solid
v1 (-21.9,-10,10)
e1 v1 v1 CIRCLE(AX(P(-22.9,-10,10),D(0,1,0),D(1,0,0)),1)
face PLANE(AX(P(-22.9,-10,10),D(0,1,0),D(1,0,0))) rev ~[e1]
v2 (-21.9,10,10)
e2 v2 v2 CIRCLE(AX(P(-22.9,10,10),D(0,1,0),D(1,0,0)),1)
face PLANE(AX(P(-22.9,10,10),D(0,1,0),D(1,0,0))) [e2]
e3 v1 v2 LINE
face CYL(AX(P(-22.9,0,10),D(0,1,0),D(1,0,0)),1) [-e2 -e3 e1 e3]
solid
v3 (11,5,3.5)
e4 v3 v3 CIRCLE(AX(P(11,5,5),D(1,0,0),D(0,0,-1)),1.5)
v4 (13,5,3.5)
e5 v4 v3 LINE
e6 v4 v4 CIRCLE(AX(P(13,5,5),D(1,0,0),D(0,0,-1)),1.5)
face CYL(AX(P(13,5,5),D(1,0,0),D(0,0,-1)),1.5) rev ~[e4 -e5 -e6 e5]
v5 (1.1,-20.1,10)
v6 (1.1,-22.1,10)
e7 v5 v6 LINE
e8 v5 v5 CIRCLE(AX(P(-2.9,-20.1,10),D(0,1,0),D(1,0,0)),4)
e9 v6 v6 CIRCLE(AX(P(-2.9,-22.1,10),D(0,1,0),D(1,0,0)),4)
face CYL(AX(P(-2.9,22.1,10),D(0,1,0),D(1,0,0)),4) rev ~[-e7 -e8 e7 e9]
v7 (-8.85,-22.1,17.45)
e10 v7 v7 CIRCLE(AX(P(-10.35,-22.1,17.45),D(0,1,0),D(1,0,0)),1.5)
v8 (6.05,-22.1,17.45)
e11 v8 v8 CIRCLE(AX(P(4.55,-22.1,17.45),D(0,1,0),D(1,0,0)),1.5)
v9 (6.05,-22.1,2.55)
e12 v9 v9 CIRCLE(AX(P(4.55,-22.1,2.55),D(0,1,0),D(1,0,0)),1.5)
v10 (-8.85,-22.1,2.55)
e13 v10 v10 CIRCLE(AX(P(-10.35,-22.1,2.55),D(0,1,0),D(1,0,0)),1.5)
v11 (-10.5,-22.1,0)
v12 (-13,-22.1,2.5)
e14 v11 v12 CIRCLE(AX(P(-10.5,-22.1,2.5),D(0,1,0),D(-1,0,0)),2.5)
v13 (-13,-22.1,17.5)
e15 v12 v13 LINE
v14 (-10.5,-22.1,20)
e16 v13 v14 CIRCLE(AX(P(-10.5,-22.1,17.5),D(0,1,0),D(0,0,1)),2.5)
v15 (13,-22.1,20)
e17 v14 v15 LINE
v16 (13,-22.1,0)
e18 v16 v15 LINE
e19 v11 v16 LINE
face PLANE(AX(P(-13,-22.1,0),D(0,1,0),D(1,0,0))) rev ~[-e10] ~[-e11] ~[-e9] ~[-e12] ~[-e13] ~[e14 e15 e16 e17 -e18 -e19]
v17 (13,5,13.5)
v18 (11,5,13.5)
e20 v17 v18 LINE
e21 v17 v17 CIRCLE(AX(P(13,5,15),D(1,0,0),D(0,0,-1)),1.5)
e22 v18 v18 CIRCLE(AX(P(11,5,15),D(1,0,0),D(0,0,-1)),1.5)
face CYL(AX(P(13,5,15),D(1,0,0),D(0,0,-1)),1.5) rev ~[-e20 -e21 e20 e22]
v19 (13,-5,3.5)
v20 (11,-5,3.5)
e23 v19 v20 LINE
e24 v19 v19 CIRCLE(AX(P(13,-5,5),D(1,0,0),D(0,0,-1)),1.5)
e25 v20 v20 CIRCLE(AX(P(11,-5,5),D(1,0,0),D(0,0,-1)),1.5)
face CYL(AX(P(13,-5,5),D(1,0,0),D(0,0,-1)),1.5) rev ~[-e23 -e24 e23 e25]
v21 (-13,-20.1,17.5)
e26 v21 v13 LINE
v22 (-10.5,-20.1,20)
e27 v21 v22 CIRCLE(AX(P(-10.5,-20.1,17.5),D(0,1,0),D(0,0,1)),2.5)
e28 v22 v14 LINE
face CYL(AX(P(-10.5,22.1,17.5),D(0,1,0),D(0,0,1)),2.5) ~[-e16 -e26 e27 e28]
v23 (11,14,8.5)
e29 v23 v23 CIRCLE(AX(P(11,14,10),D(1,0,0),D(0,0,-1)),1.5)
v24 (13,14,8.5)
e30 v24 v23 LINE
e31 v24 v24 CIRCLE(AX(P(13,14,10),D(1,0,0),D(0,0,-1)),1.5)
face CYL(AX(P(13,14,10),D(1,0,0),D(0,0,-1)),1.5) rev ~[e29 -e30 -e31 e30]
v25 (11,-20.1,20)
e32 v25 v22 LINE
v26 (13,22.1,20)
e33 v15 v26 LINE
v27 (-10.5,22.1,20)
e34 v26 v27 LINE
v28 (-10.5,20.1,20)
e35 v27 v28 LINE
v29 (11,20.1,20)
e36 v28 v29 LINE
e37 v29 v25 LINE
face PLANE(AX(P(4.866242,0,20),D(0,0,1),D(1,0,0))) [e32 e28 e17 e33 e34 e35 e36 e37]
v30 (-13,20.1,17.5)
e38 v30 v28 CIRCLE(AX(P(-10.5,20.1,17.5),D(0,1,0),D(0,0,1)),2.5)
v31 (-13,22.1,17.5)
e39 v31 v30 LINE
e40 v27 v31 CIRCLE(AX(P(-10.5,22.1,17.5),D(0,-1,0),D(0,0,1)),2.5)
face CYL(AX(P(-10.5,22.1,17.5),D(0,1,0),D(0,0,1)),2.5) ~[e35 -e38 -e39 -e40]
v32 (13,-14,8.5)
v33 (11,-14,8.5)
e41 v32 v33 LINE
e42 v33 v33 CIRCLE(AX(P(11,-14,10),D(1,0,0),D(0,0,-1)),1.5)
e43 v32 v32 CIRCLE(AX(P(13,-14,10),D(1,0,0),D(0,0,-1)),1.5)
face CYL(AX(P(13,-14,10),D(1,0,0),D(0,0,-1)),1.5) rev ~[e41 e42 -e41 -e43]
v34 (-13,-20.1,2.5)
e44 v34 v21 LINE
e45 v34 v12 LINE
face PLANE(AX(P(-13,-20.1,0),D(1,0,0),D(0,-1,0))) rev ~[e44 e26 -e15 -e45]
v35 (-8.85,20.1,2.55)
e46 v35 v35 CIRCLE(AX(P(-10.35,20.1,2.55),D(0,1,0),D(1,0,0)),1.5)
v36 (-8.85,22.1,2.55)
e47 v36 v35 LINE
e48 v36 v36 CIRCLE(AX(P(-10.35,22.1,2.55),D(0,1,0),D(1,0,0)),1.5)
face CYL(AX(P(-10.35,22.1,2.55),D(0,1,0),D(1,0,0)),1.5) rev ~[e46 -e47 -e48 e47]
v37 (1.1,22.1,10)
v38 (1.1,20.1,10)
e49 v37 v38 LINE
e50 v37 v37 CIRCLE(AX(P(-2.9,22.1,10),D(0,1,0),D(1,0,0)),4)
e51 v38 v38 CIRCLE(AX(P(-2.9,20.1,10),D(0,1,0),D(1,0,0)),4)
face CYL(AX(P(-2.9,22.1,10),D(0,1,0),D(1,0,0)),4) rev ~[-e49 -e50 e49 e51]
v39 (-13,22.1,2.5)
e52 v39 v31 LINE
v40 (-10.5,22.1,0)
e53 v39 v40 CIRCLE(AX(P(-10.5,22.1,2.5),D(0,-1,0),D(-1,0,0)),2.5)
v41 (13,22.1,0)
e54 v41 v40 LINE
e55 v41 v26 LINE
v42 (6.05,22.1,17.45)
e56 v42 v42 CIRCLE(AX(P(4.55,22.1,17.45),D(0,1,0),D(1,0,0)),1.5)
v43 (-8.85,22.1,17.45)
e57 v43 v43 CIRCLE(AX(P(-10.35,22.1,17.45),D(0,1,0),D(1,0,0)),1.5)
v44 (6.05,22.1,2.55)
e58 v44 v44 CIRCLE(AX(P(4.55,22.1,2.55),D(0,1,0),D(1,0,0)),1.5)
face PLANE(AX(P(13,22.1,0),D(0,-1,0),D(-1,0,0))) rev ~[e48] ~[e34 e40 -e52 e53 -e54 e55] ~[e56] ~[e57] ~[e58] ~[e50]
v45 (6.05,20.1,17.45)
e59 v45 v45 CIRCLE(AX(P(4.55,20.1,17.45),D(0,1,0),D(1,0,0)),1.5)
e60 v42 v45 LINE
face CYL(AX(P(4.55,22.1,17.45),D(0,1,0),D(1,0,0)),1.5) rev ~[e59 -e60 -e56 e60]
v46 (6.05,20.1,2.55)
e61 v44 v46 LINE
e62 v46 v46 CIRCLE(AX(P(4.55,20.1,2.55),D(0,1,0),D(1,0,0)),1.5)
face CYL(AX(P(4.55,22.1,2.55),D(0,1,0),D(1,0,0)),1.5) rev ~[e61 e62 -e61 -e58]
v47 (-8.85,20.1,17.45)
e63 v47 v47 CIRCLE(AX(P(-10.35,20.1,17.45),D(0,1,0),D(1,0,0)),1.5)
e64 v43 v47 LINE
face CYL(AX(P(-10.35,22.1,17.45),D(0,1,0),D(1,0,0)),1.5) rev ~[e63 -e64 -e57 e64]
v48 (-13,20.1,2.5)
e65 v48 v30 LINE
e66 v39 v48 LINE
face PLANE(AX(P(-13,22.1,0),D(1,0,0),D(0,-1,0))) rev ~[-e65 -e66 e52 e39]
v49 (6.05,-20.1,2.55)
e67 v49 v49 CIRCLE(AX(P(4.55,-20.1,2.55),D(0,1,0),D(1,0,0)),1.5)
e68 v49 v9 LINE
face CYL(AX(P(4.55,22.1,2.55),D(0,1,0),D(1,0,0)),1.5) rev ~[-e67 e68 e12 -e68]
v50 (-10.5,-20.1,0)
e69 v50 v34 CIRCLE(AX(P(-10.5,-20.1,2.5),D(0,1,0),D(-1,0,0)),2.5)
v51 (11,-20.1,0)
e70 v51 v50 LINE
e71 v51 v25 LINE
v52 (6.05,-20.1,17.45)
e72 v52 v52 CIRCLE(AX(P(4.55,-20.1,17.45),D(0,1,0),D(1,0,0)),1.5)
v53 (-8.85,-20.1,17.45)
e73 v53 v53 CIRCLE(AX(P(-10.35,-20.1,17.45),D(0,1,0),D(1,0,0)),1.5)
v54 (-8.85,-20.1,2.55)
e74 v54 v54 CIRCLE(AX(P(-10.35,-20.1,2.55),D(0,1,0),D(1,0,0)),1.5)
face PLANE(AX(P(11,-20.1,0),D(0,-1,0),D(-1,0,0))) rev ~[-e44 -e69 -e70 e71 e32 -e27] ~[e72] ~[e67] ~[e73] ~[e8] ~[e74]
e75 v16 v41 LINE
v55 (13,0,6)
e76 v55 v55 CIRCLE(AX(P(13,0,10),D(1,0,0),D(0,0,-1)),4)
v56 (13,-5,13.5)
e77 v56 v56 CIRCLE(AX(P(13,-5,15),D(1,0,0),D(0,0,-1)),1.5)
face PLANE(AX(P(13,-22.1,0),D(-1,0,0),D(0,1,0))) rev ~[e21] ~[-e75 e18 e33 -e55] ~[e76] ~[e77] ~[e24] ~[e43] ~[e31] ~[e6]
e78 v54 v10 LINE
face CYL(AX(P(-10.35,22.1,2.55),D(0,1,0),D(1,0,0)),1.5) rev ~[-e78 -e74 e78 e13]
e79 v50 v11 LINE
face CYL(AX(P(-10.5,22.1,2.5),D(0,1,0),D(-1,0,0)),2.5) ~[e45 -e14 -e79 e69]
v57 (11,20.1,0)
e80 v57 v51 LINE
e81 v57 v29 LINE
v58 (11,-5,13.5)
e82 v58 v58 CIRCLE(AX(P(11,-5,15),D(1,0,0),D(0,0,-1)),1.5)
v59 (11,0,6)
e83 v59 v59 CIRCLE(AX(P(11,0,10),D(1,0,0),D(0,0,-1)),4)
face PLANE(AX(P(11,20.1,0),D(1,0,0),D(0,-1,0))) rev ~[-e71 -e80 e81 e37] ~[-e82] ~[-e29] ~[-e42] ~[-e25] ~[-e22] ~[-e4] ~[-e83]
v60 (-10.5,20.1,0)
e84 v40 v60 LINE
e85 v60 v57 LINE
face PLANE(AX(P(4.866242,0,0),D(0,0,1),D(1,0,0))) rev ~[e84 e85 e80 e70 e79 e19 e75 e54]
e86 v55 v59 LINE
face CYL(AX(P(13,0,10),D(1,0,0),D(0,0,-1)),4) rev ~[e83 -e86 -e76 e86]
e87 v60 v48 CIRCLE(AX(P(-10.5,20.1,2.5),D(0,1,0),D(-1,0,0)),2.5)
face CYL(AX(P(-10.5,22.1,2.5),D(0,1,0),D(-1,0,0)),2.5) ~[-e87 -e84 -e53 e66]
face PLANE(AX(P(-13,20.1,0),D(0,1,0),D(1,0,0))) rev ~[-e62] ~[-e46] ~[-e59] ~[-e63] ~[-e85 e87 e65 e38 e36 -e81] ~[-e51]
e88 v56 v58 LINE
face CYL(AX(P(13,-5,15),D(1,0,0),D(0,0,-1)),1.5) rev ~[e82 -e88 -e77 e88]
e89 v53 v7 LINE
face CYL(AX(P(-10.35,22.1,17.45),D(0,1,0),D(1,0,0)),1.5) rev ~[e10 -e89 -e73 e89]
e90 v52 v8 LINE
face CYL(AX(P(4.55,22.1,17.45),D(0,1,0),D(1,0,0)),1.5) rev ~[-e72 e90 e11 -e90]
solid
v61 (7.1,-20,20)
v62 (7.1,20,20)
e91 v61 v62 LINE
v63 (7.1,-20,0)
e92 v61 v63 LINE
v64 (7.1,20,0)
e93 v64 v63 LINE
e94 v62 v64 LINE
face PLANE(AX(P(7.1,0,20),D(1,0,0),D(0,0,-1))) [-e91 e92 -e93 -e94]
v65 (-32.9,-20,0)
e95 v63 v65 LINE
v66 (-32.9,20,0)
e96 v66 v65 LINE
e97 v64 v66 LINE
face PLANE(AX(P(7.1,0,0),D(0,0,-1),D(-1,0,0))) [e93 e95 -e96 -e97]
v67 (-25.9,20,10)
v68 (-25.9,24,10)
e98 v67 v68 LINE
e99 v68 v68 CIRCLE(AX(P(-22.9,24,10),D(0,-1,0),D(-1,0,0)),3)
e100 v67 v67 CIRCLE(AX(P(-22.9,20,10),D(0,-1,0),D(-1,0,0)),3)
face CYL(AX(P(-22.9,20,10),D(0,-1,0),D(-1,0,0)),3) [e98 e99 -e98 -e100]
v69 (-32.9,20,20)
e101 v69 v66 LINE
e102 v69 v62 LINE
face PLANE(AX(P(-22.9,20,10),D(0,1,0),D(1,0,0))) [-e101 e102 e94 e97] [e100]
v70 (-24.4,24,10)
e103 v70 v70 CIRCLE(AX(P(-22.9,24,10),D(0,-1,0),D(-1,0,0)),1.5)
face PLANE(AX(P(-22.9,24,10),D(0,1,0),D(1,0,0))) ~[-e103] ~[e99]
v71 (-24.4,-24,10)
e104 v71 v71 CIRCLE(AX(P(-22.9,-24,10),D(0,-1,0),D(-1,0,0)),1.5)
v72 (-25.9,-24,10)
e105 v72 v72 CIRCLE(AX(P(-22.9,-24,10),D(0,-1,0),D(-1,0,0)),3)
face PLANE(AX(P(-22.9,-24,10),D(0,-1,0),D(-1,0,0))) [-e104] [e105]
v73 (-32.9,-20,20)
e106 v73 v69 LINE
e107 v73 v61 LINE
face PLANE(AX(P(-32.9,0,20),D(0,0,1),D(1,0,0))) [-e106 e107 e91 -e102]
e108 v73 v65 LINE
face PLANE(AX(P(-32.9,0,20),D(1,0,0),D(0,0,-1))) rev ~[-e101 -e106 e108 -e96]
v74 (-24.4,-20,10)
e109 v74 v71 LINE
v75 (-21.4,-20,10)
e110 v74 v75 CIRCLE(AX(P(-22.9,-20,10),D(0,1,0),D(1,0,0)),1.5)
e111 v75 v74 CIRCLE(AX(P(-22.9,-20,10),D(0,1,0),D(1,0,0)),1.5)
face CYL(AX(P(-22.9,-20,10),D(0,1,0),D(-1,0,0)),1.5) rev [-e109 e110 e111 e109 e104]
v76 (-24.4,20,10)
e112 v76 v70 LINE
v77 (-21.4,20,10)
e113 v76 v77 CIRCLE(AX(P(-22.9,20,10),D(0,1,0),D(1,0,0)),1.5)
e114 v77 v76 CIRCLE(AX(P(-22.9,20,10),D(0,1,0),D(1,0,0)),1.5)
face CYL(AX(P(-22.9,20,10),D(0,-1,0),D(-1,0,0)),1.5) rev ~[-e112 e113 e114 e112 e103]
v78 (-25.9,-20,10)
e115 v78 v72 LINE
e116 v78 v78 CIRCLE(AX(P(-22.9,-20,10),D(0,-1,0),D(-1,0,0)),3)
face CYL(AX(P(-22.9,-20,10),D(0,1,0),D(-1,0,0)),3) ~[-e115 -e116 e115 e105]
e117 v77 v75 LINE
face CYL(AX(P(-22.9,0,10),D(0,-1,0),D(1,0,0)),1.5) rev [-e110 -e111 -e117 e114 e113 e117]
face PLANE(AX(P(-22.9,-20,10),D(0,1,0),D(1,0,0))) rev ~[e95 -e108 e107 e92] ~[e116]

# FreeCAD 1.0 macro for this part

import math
import FreeCAD as App
import Part
import Sketcher


def add_polygon(sketch, points):
    """Adds a closed chain of lines whose ends are joined by coincident constraints."""
    first, n = sketch.GeometryCount, len(points)
    for a, b in zip(points, points[1:] + points[:1]):
        sketch.addGeometry(Part.LineSegment(App.Vector(*a, 0), App.Vector(*b, 0)), False)
    for i in range(n):
        sketch.addConstraint(Sketcher.Constraint("Coincident", first + i, 2, first + (i + 1) % n, 1))

doc = App.newDocument("Part")
body = doc.addObject("PartDesign::Body", "Body")

# Sketch on XY plane
sketch1 = doc.addObject("Sketcher::SketchObject", "Sketch")
body.addObject(sketch1)
sketch1.AttachmentSupport = (doc.XY_Plane, [""])
sketch1.MapMode = "FlatFace"
add_polygon(sketch1, [(11, -20.1), (-13, -20.1), (-13, -22.1), (13, -22.1), (13, 22.1), (-13, 22.1), (-13, 20.1), (11, 20.1)])  # lines 0-7
sketch1.addConstraint([
    Sketcher.Constraint("Horizontal", 0),
    Sketcher.Constraint("Vertical", 1),
    Sketcher.Constraint("Horizontal", 2),
    Sketcher.Constraint("Vertical", 3),
    Sketcher.Constraint("Horizontal", 4),
    Sketcher.Constraint("Vertical", 5),
    Sketcher.Constraint("Horizontal", 6),
    Sketcher.Constraint("Vertical", 7),
    Sketcher.Constraint("Symmetric", 1, 2, 3, 2, -1, 1),
    Sketcher.Constraint("Symmetric", 0, 2, 5, 2, -1),
    Sketcher.Constraint("DistanceX", 0, 2, 0, 1, 24.0),
    Sketcher.Constraint("DistanceX", 2, 1, 2, 2, 26.0),
    Sketcher.Constraint("DistanceY", 1, 2, 1, 1, 2.0),
    Sketcher.Constraint("DistanceY", 3, 1, 3, 2, 44.2),
])
pad1 = doc.addObject("PartDesign::Pad", "Pad")
body.addObject(pad1)
pad1.Profile = sketch1
pad1.Length = 20

# Sketch on XZ plane
sketch2 = doc.addObject("Sketcher::SketchObject", "Sketch001")
body.addObject(sketch2)
sketch2.AttachmentSupport = (doc.XZ_Plane, [""])
sketch2.MapMode = "FlatFace"
sketch2.AttachmentOffset = App.Placement(App.Vector(0, 0, -22.1), App.Rotation())
sketch2.addGeometry([
    Part.LineSegment(App.Vector(-13, 17.5, 0), App.Vector(-13, 20, 0)),  # 0
    Part.LineSegment(App.Vector(-13, 20, 0), App.Vector(-10.5, 20, 0)),  # 1
    Part.ArcOfCircle(Part.Circle(App.Vector(-10.5, 17.5, 0), App.Vector(0, 0, 1), 2.5), math.radians(90), math.radians(180)),  # 2
    Part.LineSegment(App.Vector(-13, 0, 0), App.Vector(-13, 2.5, 0)),  # 3
    Part.ArcOfCircle(Part.Circle(App.Vector(-10.5, 2.5, 0), App.Vector(0, 0, 1), 2.5), math.radians(180), math.radians(270)),  # 4
    Part.LineSegment(App.Vector(-10.5, 0, 0), App.Vector(-13, 0, 0)),  # 5
], False)
sketch2.addConstraint([
    Sketcher.Constraint("Coincident", 0, 2, 1, 1),
    Sketcher.Constraint("Tangent", 1, 2, 2, 1),
    Sketcher.Constraint("Tangent", 2, 2, 0, 1),
    Sketcher.Constraint("Tangent", 3, 2, 4, 1),
    Sketcher.Constraint("Tangent", 4, 2, 5, 1),
    Sketcher.Constraint("Coincident", 5, 2, 3, 1),
    Sketcher.Constraint("Vertical", 0),
    Sketcher.Constraint("Horizontal", 1),
    Sketcher.Constraint("Vertical", 3),
    Sketcher.Constraint("Horizontal", 5),
    Sketcher.Constraint("Equal", 2, 4),
    Sketcher.Constraint("PointOnObject", 4, 2, -1),
    Sketcher.Constraint("Vertical", 2, 3, 4, 3),
    Sketcher.Constraint("Radius", 2, 2.5),
    Sketcher.Constraint("DistanceX", 0, 2, -1, 1, 13.0),
    Sketcher.Constraint("DistanceY", -1, 1, 0, 2, 20.0),
])
pocket1 = doc.addObject("PartDesign::Pocket", "Pocket")
body.addObject(pocket1)
pocket1.Profile = sketch2
pocket1.Type = "ThroughAll"
pocket1.Reversed = True

# Sketch on XZ plane
sketch3 = doc.addObject("Sketcher::SketchObject", "Sketch002")
body.addObject(sketch3)
sketch3.AttachmentSupport = (doc.XZ_Plane, [""])
sketch3.MapMode = "FlatFace"
sketch3.AttachmentOffset = App.Placement(App.Vector(0, 0, -22.1), App.Rotation())
sketch3.addGeometry([
    Part.Circle(App.Vector(-2.9, 10, 0), App.Vector(0, 0, 1), 4),  # 0
    Part.Circle(App.Vector(-10.3, 17.4, 0), App.Vector(0, 0, 1), 1.5),  # 1
    Part.Circle(App.Vector(-10.3, 2.5, 0), App.Vector(0, 0, 1), 1.5),  # 2
    Part.Circle(App.Vector(4.5, 17.4, 0), App.Vector(0, 0, 1), 1.5),  # 3
    Part.Circle(App.Vector(4.5, 2.5, 0), App.Vector(0, 0, 1), 1.5),  # 4
], False)
sketch3.addConstraint([
    Sketcher.Constraint("Equal", 1, 2),
    Sketcher.Constraint("Equal", 2, 3),
    Sketcher.Constraint("Equal", 3, 4),
    Sketcher.Constraint("Horizontal", 1, 3, 3, 3),
    Sketcher.Constraint("Horizontal", 2, 3, 4, 3),
    Sketcher.Constraint("Vertical", 1, 3, 2, 3),
    Sketcher.Constraint("Vertical", 3, 3, 4, 3),
    Sketcher.Constraint("Diameter", 0, 8.0),
    Sketcher.Constraint("Diameter", 1, 3.0),
    Sketcher.Constraint("DistanceY", -1, 1, 0, 3, 10.0),
    Sketcher.Constraint("DistanceX", 0, 3, -1, 1, 2.9),
    Sketcher.Constraint("DistanceY", 2, 3, 1, 3, 14.9),
    Sketcher.Constraint("DistanceX", 1, 3, 3, 3, 14.9),
    Sketcher.Constraint("DistanceX", 1, 3, -1, 1, 10.35),
    Sketcher.Constraint("DistanceY", -1, 1, 1, 3, 17.45),
])
pocket2 = doc.addObject("PartDesign::Pocket", "Pocket001")
body.addObject(pocket2)
pocket2.Profile = sketch3
pocket2.Type = "ThroughAll"
pocket2.Midplane = True

# Sketch on YZ plane
sketch4 = doc.addObject("Sketcher::SketchObject", "Sketch003")
body.addObject(sketch4)
sketch4.AttachmentSupport = (doc.YZ_Plane, [""])
sketch4.MapMode = "FlatFace"
sketch4.AttachmentOffset = App.Placement(App.Vector(0, 0, 13), App.Rotation())
sketch4.addGeometry([
    Part.Circle(App.Vector(0, 10, 0), App.Vector(0, 0, 1), 4),  # 0
    Part.Circle(App.Vector(5, 15, 0), App.Vector(0, 0, 1), 1.5),  # 1
    Part.Circle(App.Vector(5, 5, 0), App.Vector(0, 0, 1), 1.5),  # 2
    Part.Circle(App.Vector(-5, 5, 0), App.Vector(0, 0, 1), 1.5),  # 3
    Part.Circle(App.Vector(-5, 15, 0), App.Vector(0, 0, 1), 1.5),  # 4
], False)
sketch4.addConstraint([
    Sketcher.Constraint("Equal", 1, 2),
    Sketcher.Constraint("Equal", 2, 3),
    Sketcher.Constraint("Equal", 3, 4),
    Sketcher.Constraint("Symmetric", 2, 3, 3, 3, -2),
    Sketcher.Constraint("Symmetric", 1, 3, 4, 3, -2),
    Sketcher.Constraint("PointOnObject", 0, 3, -2),
    Sketcher.Constraint("Vertical", 1, 3, 2, 3),
    Sketcher.Constraint("Diameter", 0, 8.0),
    Sketcher.Constraint("Diameter", 1, 3.0),
    Sketcher.Constraint("DistanceY", -1, 1, 0, 3, 10.0),
    Sketcher.Constraint("DistanceX", -1, 1, 1, 3, 5.0),
    Sketcher.Constraint("DistanceY", -1, 1, 1, 3, 15.0),
    Sketcher.Constraint("DistanceY", -1, 1, 2, 3, 5.0),
])
pocket3 = doc.addObject("PartDesign::Pocket", "Pocket002")
body.addObject(pocket3)
pocket3.Profile = sketch4
pocket3.Length = 20

# Sketch on YZ plane
sketch5 = doc.addObject("Sketcher::SketchObject", "Sketch004")
body.addObject(sketch5)
sketch5.AttachmentSupport = (doc.YZ_Plane, [""])
sketch5.MapMode = "FlatFace"
sketch5.AttachmentOffset = App.Placement(App.Vector(0, 0, 13), App.Rotation())
sketch5.addGeometry([
    Part.Circle(App.Vector(14, 10, 0), App.Vector(0, 0, 1), 1.5),
    Part.Circle(App.Vector(-14, 10, 0), App.Vector(0, 0, 1), 1.5),
], False)
sketch5.addConstraint([
    Sketcher.Constraint("Equal", 0, 1),
    Sketcher.Constraint("Symmetric", 0, 3, 1, 3, -2),
    Sketcher.Constraint("Diameter", 0, 3.0),
    Sketcher.Constraint("DistanceX", -1, 1, 0, 3, 14.0),
    Sketcher.Constraint("DistanceY", -1, 1, 0, 3, 10.0),
])
pocket4 = doc.addObject("PartDesign::Pocket", "Pocket003")
body.addObject(pocket4)
pocket4.Profile = sketch5
pocket4.Length = 20
body2 = doc.addObject("PartDesign::Body", "Body001")

# Sketch on XZ plane
sketch6 = doc.addObject("Sketcher::SketchObject", "Sketch005")
body2.addObject(sketch6)
sketch6.AttachmentSupport = (doc.getObject("XZ_Plane001"), [""])
sketch6.MapMode = "FlatFace"
sketch6.addGeometry(Part.Circle(App.Vector(-22.9, 10, 0), App.Vector(0, 0, 1), 1), False)
sketch6.addConstraint([
    Sketcher.Constraint("Diameter", 0, 2.0),
    Sketcher.Constraint("DistanceY", -1, 1, 0, 3, 10.0),
    Sketcher.Constraint("DistanceX", 0, 3, -1, 1, 22.9),
])
pad2 = doc.addObject("PartDesign::Pad", "Pad001")
body2.addObject(pad2)
pad2.Profile = sketch6
pad2.Length = 20
pad2.Midplane = True
body3 = doc.addObject("PartDesign::Body", "Body002")

# Sketch on XZ plane
sketch7 = doc.addObject("Sketcher::SketchObject", "Sketch006")
body3.addObject(sketch7)
sketch7.AttachmentSupport = (doc.getObject("XZ_Plane002"), [""])
sketch7.MapMode = "FlatFace"
add_polygon(sketch7, [(-32.9, 0), (-32.9, 20), (7.1, 20), (7.1, 0)])  # lines 0-3
sketch7.addGeometry(Part.Circle(App.Vector(-22.9, 10, 0), App.Vector(0, 0, 1), 1.5), False)  # 4
sketch7.addConstraint([
    Sketcher.Constraint("Vertical", 0),
    Sketcher.Constraint("Horizontal", 1),
    Sketcher.Constraint("Vertical", 2),
    Sketcher.Constraint("Horizontal", 3),
    Sketcher.Constraint("PointOnObject", 2, 2, -1),
    Sketcher.Constraint("Diameter", 4, 3.0),
    Sketcher.Constraint("DistanceX", 1, 1, 1, 2, 40.0),
    Sketcher.Constraint("DistanceY", 0, 1, 0, 2, 20.0),
    Sketcher.Constraint("DistanceY", -1, 1, 4, 3, 10.0),
    Sketcher.Constraint("DistanceX", 0, 2, 4, 3, 10.0),
    Sketcher.Constraint("DistanceX", 4, 3, -1, 1, 22.9),
])
pad3 = doc.addObject("PartDesign::Pad", "Pad002")
body3.addObject(pad3)
pad3.Profile = sketch7
pad3.Length = 40
pad3.Midplane = True

# Sketch on XZ plane
sketch8 = doc.addObject("Sketcher::SketchObject", "Sketch007")
body3.addObject(sketch8)
sketch8.AttachmentSupport = (doc.getObject("XZ_Plane002"), [""])
sketch8.MapMode = "FlatFace"
sketch8.AttachmentOffset = App.Placement(App.Vector(0, 0, 20), App.Rotation())
sketch8.addGeometry([
    Part.Circle(App.Vector(-22.9, 10, 0), App.Vector(0, 0, 1), 3),
    Part.Circle(App.Vector(-22.9, 10, 0), App.Vector(0, 0, 1), 1.5),
], False)
sketch8.addConstraint([
    Sketcher.Constraint("Coincident", 1, 3, 0, 3),
    Sketcher.Constraint("Diameter", 0, 6.0),
    Sketcher.Constraint("Diameter", 1, 3.0),
    Sketcher.Constraint("DistanceY", -1, 1, 0, 3, 10.0),
    Sketcher.Constraint("DistanceX", 0, 3, -1, 1, 22.9),
])
pad4 = doc.addObject("PartDesign::Pad", "Pad003")
body3.addObject(pad4)
pad4.Profile = sketch8
pad4.Length = 4
doc.recompute()

mirrored = doc.addObject("PartDesign::Mirrored", "Mirrored")
body3.addObject(mirrored)
mirrored.Originals = [pad4]
mirrored.MirrorPlane = (doc.getObject("XZ_Plane002"), [""])
body3.Tip = mirrored

doc.recompute()
